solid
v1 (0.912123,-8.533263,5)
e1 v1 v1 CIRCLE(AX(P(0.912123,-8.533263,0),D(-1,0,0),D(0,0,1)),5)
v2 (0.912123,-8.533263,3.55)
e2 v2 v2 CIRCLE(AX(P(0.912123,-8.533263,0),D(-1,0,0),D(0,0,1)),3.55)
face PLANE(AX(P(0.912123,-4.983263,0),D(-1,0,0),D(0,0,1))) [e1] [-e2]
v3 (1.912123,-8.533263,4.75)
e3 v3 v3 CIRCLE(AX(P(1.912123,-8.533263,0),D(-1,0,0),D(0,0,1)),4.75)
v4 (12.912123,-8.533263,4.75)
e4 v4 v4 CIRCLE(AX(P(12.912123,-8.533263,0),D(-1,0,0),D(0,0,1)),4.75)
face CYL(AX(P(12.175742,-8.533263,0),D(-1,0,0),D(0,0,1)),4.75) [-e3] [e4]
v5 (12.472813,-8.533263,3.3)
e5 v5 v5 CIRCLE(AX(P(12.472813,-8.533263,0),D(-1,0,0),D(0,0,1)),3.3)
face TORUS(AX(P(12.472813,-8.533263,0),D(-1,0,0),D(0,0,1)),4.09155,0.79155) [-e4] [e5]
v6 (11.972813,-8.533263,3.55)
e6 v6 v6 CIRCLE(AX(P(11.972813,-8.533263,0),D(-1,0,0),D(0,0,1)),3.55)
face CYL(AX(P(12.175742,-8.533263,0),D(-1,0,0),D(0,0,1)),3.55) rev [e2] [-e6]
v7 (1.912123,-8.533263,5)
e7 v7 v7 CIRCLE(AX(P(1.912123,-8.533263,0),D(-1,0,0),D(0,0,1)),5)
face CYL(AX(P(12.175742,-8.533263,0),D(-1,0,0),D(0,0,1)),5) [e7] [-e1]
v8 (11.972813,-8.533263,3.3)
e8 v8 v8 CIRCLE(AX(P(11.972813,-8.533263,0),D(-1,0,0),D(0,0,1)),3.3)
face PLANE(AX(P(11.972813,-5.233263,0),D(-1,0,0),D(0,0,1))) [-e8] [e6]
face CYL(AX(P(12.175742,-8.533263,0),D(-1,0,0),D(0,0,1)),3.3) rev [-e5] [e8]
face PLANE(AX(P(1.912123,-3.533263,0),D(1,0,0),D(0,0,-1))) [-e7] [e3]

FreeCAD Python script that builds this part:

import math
import FreeCAD as App
import Part
import Sketcher

V = App.Vector
Q = App.Units.Quantity

doc = App.newDocument("Part")
params = doc.addObject("Spreadsheet::Sheet", "Params")
for row, (alias, value) in enumerate([
    ("sketch1_width", "1 mm"),
    ("sketch1_width2", "11 mm"),
    ("sketch1_width3", "0.5 mm"),
    ("sketch1_height", "0.25 mm"),
    ("sketch1_height2", "1.45 mm"),
    ("revolution_angle", "360 deg"),
], start=1):
    params.set(f"A{row}", alias)
    params.set(f"B{row}", "=" + value)
    params.setAlias(f"B{row}", alias)

body = doc.addObject("PartDesign::Body", "Body")

# Sketch on XY plane
sketch1 = doc.addObject("Sketcher::SketchObject", "Sketch")
body.addObject(sketch1)
sketch1.AttachmentSupport = (doc.XY_Plane, [""])
sketch1.MapMode = "FlatFace"
sketch1.addGeometry([
    Part.LineSegment(V(11.97, -5.23, 0), V(11.97, -4.98, 0)),  # 0
    Part.LineSegment(V(11.97, -4.98, 0), V(0.91, -4.98, 0)),  # 1
    Part.LineSegment(V(0.91, -4.98, 0), V(0.91, -3.53, 0)),  # 2
    Part.LineSegment(V(0.91, -3.53, 0), V(1.91, -3.53, 0)),  # 3
    Part.LineSegment(V(1.91, -3.53, 0), V(1.91, -3.78, 0)),  # 4
    Part.LineSegment(V(1.91, -3.78, 0), V(12.91, -3.78, 0)),  # 5
    Part.ArcOfCircle(Part.Circle(V(12.47, -4.44, 0), V(0, 0, 1), 0.79), math.radians(-90), math.radians(56)),  # 6
    Part.LineSegment(V(12.47, -5.23, 0), V(11.97, -5.23, 0)),  # 7
], False)
sketch1.addGeometry(Part.LineSegment(V(12.91, -8.53, 0), V(0.91, -8.53, 0)), True)  # axis
sketch1.addConstraint([
    Sketcher.Constraint("Coincident", 0, 2, 1, 1),
    Sketcher.Constraint("Coincident", 1, 2, 2, 1),
    Sketcher.Constraint("Coincident", 2, 2, 3, 1),
    Sketcher.Constraint("Coincident", 3, 2, 4, 1),
    Sketcher.Constraint("Coincident", 4, 2, 5, 1),
    Sketcher.Constraint("Coincident", 5, 2, 6, 2),
    Sketcher.Constraint("Tangent", 6, 1, 7, 1),
    Sketcher.Constraint("Coincident", 7, 2, 0, 1),
    Sketcher.Constraint("Vertical", 0),
    Sketcher.Constraint("Horizontal", 1),
    Sketcher.Constraint("Vertical", 2),
    Sketcher.Constraint("Horizontal", 3),
    Sketcher.Constraint("Vertical", 4),
    Sketcher.Constraint("Horizontal", 5),
    Sketcher.Constraint("Horizontal", 7),
    Sketcher.Constraint("Horizontal", 8),
    Sketcher.Constraint("Vertical", 5, 2, 8, 1),
    Sketcher.Constraint("Vertical", 2, 2, 8, 2),
    Sketcher.Constraint("Equal", 0, 4),
    Sketcher.Constraint("DistanceX", 3, 1, 3, 2, Q("1 mm")),
    Sketcher.Constraint("DistanceX", 5, 1, 5, 2, Q("11 mm")),
    Sketcher.Constraint("DistanceX", 7, 2, 7, 1, Q("0.5 mm")),
    Sketcher.Constraint("DistanceY", 8, 2, 2, 2, Q("5 mm")),
    Sketcher.Constraint("DistanceY", 0, 1, 0, 2, Q("0.25 mm")),
    Sketcher.Constraint("DistanceY", 2, 1, 2, 2, Q("1.45 mm")),
    Sketcher.Constraint("Radius", 6, Q("0.79155 mm")),
    Sketcher.Constraint("DistanceX", -1, 1, 6, 3, Q("12.472813 mm")),
    Sketcher.Constraint("DistanceY", 6, 3, -1, 1, Q("4.441714 mm")),
])
sketch1.setExpression("Constraints[19]", "Params.sketch1_width")
sketch1.setExpression("Constraints[20]", "Params.sketch1_width2")
sketch1.setExpression("Constraints[21]", "Params.sketch1_width3")
sketch1.setExpression("Constraints[23]", "Params.sketch1_height")
sketch1.setExpression("Constraints[24]", "Params.sketch1_height2")
revolution = doc.addObject("PartDesign::Revolution", "Revolution")
body.addObject(revolution)
revolution.Profile = sketch1
revolution.ReferenceAxis = (sketch1, ["Axis0"])
revolution.setExpression("Angle", "Params.revolution_angle")

doc.recompute()
